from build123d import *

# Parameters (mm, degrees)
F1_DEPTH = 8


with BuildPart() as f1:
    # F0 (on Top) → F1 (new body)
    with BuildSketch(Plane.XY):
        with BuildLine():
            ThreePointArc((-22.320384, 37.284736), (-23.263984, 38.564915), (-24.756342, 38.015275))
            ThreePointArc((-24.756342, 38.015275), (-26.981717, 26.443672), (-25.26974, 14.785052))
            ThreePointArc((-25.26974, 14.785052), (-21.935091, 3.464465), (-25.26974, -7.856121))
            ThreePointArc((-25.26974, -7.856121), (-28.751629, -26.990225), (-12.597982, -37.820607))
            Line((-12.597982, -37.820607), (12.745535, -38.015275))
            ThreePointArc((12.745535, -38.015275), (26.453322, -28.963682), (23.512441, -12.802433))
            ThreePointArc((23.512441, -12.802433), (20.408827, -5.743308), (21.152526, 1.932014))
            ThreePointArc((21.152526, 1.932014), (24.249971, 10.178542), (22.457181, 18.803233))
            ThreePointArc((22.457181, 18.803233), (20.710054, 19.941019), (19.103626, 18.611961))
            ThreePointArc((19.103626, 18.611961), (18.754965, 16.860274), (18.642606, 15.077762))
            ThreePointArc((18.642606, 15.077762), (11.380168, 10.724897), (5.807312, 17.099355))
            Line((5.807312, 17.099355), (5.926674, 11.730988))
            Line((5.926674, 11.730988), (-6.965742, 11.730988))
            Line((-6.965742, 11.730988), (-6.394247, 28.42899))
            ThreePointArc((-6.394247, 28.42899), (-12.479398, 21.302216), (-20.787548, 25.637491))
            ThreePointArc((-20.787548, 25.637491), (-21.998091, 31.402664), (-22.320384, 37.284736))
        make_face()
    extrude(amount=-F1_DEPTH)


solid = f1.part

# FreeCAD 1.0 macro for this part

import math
import FreeCAD as App
import Part
import Sketcher
Q = App.Units.Quantity

doc = App.newDocument("Part")
body = doc.addObject("PartDesign::Body", "Body")

sketch1 = body.newObject("Sketcher::SketchObject", "Sketch")
sketch1.AttachmentSupport = (doc.getObject("XY_Plane"), [""])
sketch1.MapMode = "FlatFace"
sketch1.addGeometry([
    Part.ArcOfCircle(Part.Circle(App.Vector(-23.644307, 37.296739, 0), App.Vector(0, 0, 1), 1.323977), math.radians(-0.519441), math.radians(147.131673)),
    Part.ArcOfCircle(Part.Circle(App.Vector(8.266973, 25.664661, 0), App.Vector(0, 0, 1), 35.257297), math.radians(159.494364), math.radians(197.973525)),
    Part.ArcOfCircle(Part.Circle(App.Vector(-42.818183, 3.464466, 0), App.Vector(0, 0, 1), 20.883092), math.radians(-32.82626), math.radians(32.82626)),
    Part.ArcOfCircle(Part.Circle(App.Vector(-12.411043, -20.079913, 0), App.Vector(0, 0, 1), 17.741679), math.radians(136.450002), math.radians(269.396278)),
    Part.LineSegment(App.Vector(-12.597982, -37.820607, 0), App.Vector(12.745535, -38.015275, 0)),
    Part.ArcOfCircle(Part.Circle(App.Vector(12.745535, -23.109901, 0), App.Vector(0, 0, 1), 14.905374), math.radians(-90.000001), math.radians(43.751107)),
    Part.ArcOfCircle(Part.Circle(App.Vector(35.478159, -3.329757, 0), App.Vector(0, 0, 1), 15.261389), math.radians(159.831836), math.radians(218.366943)),
    Part.ArcOfCircle(Part.Circle(App.Vector(8.476065, 11.398342, 0), App.Vector(0, 0, 1), 15.820999), math.radians(-36.75106), math.radians(27.90727)),
    Part.ArcOfCircle(Part.Circle(App.Vector(20.810235, 18.184559, 0), App.Vector(0, 0, 1), 1.759315), math.radians(20.58865), math.radians(165.940074)),
    Part.ArcOfCircle(Part.Circle(App.Vector(32.028655, 15.128782, 0), App.Vector(0, 0, 1), 13.386146), math.radians(164.91761), math.radians(180.218378)),
    Part.ArcOfCircle(Part.Circle(App.Vector(12.407275, 17.246101, 0), App.Vector(0, 0, 1), 6.601594), math.radians(-178.726278), math.radians(-19.175138)),
    Part.LineSegment(App.Vector(5.807312, 17.099355, 0), App.Vector(5.926674, 11.730988, 0)),
    Part.LineSegment(App.Vector(5.926674, 11.730988, 0), App.Vector(-6.965742, 11.730988, 0)),
    Part.LineSegment(App.Vector(-6.965742, 11.730988, 0), App.Vector(-6.394247, 28.42899, 0)),
    Part.ArcOfCircle(Part.Circle(App.Vector(-13.911494, 28.686273, 0), App.Vector(0, 0, 1), 7.521648), math.radians(-156.087924), math.radians(-1.960221)),
    Part.ArcOfCircle(Part.Circle(App.Vector(16.405311, 36.456745, 0), App.Vector(0, 0, 1), 38.734546), math.radians(178.77515), math.radians(196.219503)),
], False)
sketch1.addConstraint([
    Sketcher.Constraint("Coincident", 0, 2, 1, 1),
    Sketcher.Constraint("Coincident", 1, 2, 2, 2),
    Sketcher.Constraint("Coincident", 2, 1, 3, 1),
    Sketcher.Constraint("Coincident", 3, 2, 4, 1),
    Sketcher.Constraint("Coincident", 4, 2, 5, 1),
    Sketcher.Constraint("Coincident", 5, 2, 6, 2),
    Sketcher.Constraint("Coincident", 6, 1, 7, 1),
    Sketcher.Constraint("Coincident", 7, 2, 8, 1),
    Sketcher.Constraint("Coincident", 8, 2, 9, 1),
    Sketcher.Constraint("Coincident", 9, 2, 10, 2),
    Sketcher.Constraint("Tangent", 10, 1, 11, 1),
    Sketcher.Constraint("Coincident", 11, 2, 12, 1),
    Sketcher.Constraint("Coincident", 12, 2, 13, 1),
    Sketcher.Constraint("Tangent", 13, 2, 14, 2),
    Sketcher.Constraint("Coincident", 14, 1, 15, 2),
    Sketcher.Constraint("Coincident", 15, 1, 0, 1),
    Sketcher.Constraint("Horizontal", 12),
    Sketcher.Constraint("Vertical", 1, 2, 2, 1),
    Sketcher.Constraint("Vertical", 5, 3, 4, 2),
    Sketcher.Constraint("Radius", 7, Q("15.820999 mm")),
    Sketcher.Constraint("Radius", 2, Q("20.883092 mm")),
    Sketcher.Constraint("Radius", 3, Q("17.741679 mm")),
    Sketcher.Constraint("Radius", 6, Q("15.261389 mm")),
    Sketcher.Constraint("Radius", 14, Q("7.521648 mm")),
    Sketcher.Constraint("Radius", 0, Q("1.323977 mm")),
    Sketcher.Constraint("Radius", 1, Q("35.257297 mm")),
    Sketcher.Constraint("Radius", 5, Q("14.905374 mm")),
    Sketcher.Constraint("Radius", 8, Q("1.759315 mm")),
    Sketcher.Constraint("Radius", 9, Q("13.386146 mm")),
    Sketcher.Constraint("Radius", 10, Q("6.601594 mm")),
    Sketcher.Constraint("Radius", 15, Q("38.734546 mm")),
    Sketcher.Constraint("DistanceX", 1, 2, 12, 2, Q("18.303998 mm")),
    Sketcher.Constraint("DistanceY", 12, 2, 13, 2, Q("16.698002 mm")),
    Sketcher.Constraint("DistanceY", 5, 3, -1, 1, Q("23.109901 mm")),
    Sketcher.Constraint("DistanceY", -1, 1, 10, 3, Q("17.246101 mm")),
    Sketcher.Constraint("DistanceX", 3, 3, 6, 3, Q("47.889202 mm")),
    Sketcher.Constraint("DistanceY", 6, 3, 7, 3, Q("14.728099 mm")),
    Sketcher.Constraint("DistanceY", 8, 3, 1, 3, Q("7.480102 mm")),
    Sketcher.Constraint("DistanceX", 5, 3, 8, 3, Q("8.0647 mm")),
    Sketcher.Constraint("DistanceX", 1, 3, 10, 3, Q("4.140302 mm")),
    Sketcher.Constraint("DistanceX", 1, 2, 0, 2, Q("0.513398 mm")),
    Sketcher.Constraint("DistanceX", 2, 3, 3, 2, Q("30.220201 mm")),
    Sketcher.Constraint("DistanceY", 8, 3, 8, 2, Q("0.427402 mm")),
    Sketcher.Constraint("DistanceY", 9, 2, 8, 2, Q("3.534199 mm")),
    Sketcher.Constraint("DistanceX", 11, 2, 10, 3, Q("6.480601 mm")),
    Sketcher.Constraint("DistanceX", 14, 1, 13, 2, Q("14.393301 mm")),
    Sketcher.Constraint("DistanceY", 14, 1, 13, 2, Q("2.791499 mm")),
    Sketcher.Constraint("DistanceX", 12, 2, 12, 1, Q("12.892416 mm")),
    Sketcher.Constraint("DistanceY", -1, 1, 0, 3, Q("37.296739 mm")),
    Sketcher.Constraint("DistanceY", -1, 1, 1, 3, Q("25.664661 mm")),
    Sketcher.Constraint("DistanceX", -1, 1, 6, 3, Q("35.478159 mm")),
    Sketcher.Constraint("DistanceY", -1, 1, 7, 3, Q("11.398342 mm")),
    Sketcher.Constraint("DistanceY", -1, 1, 9, 3, Q("15.128782 mm")),
    Sketcher.Constraint("DistanceX", -1, 1, 15, 3, Q("16.405311 mm")),
    Sketcher.Constraint("DistanceX", 0, 2, -1, 1, Q("24.756342 mm")),
    Sketcher.Constraint("DistanceY", 2, 1, -1, 1, Q("7.856121 mm")),
    Sketcher.Constraint("DistanceX", -1, 1, 7, 2, Q("22.457181 mm")),
    Sketcher.Constraint("DistanceY", -1, 1, 13, 2, Q("28.42899 mm")),
])
pad1 = body.newObject("PartDesign::Pad", "Pad")
pad1.Profile = sketch1
pad1.Length = 8
pad1.Reversed = True

doc.recompute()
